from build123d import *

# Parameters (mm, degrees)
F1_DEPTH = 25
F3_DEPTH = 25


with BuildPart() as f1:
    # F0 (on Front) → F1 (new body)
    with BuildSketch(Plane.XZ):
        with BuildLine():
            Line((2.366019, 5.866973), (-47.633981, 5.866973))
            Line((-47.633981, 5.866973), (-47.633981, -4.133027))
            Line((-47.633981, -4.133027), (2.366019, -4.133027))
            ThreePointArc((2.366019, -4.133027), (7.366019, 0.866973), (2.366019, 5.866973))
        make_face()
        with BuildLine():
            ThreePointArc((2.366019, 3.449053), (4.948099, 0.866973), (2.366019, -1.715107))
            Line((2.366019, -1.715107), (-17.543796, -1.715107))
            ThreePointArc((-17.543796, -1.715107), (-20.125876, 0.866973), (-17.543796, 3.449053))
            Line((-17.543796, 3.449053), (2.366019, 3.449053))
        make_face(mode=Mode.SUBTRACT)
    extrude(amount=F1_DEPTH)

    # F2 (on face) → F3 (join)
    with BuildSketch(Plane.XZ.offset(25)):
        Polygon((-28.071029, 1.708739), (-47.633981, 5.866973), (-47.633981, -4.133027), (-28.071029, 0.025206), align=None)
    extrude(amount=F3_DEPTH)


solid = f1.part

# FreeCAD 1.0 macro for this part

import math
import FreeCAD as App
import Part
import Sketcher

V = App.Vector
Q = App.Units.Quantity


def add_polygon(sketch, points):
    """Adds a closed chain of lines whose ends are joined by coincident constraints."""
    first, n = sketch.GeometryCount, len(points)
    for a, b in zip(points, points[1:] + points[:1]):
        sketch.addGeometry(Part.LineSegment(App.Vector(*a, 0), App.Vector(*b, 0)), False)
    for i in range(n):
        sketch.addConstraint(Sketcher.Constraint("Coincident", first + i, 2, first + (i + 1) % n, 1))

doc = App.newDocument("Part")
params = doc.addObject("Spreadsheet::Sheet", "Params")
for row, (alias, value) in enumerate([
    ("sketch1_radius", "5 mm"),
    ("sketch1_width", "50 mm"),
    ("pad1_length", "25 mm"),
    ("sketch2_height", "10 mm"),
    ("sketch2_length", "20 mm"),
    ("pad2_length", "25 mm"),
], start=1):
    params.set(f"A{row}", alias)
    params.set(f"B{row}", "=" + value)
    params.setAlias(f"B{row}", alias)

body = doc.addObject("PartDesign::Body", "Body")

# Sketch on XZ plane
sketch1 = body.newObject("Sketcher::SketchObject", "Sketch")
sketch1.AttachmentSupport = (doc.getObject("XZ_Plane"), [""])
sketch1.MapMode = "FlatFace"
sketch1.addGeometry(Part.LineSegment(V(2.4, 5.9, 0), V(-47.6, 5.9, 0)), False)
sketch1.addGeometry(Part.LineSegment(V(-47.6, 5.9, 0), V(-47.6, -4.1, 0)), False)
sketch1.addGeometry(Part.LineSegment(V(-47.6, -4.1, 0), V(2.4, -4.1, 0)), False)
sketch1.addGeometry(Part.ArcOfCircle(Part.Circle(V(2.4, 0.9, 0), V(0, 0, 1), 5), math.radians(-90), math.radians(90)), False)
sketch1.addGeometry(Part.LineSegment(V(-17.5, 3.4, 0), V(2.4, 3.4, 0)), False)
sketch1.addGeometry(Part.ArcOfCircle(Part.Circle(V(2.4, 0.9, 0), V(0, 0, 1), 2.6), math.radians(-90), math.radians(90)), False)
sketch1.addGeometry(Part.LineSegment(V(2.4, -1.7, 0), V(-17.5, -1.7, 0)), False)
sketch1.addGeometry(Part.ArcOfCircle(Part.Circle(V(-17.5, 0.9, 0), V(0, 0, 1), 2.6), math.radians(90), math.radians(270)), False)
sketch1.addConstraint(Sketcher.Constraint("Coincident", 0, 2, 1, 1))
sketch1.addConstraint(Sketcher.Constraint("Coincident", 1, 2, 2, 1))
sketch1.addConstraint(Sketcher.Constraint("Tangent", 2, 2, 3, 1))
sketch1.addConstraint(Sketcher.Constraint("Tangent", 3, 2, 0, 1))
sketch1.addConstraint(Sketcher.Constraint("Tangent", 4, 2, 5, 2))
sketch1.addConstraint(Sketcher.Constraint("Tangent", 5, 1, 6, 1))
sketch1.addConstraint(Sketcher.Constraint("Tangent", 6, 2, 7, 2))
sketch1.addConstraint(Sketcher.Constraint("Tangent", 7, 1, 4, 1))
sketch1.addConstraint(Sketcher.Constraint("Horizontal", 0))
sketch1.addConstraint(Sketcher.Constraint("Vertical", 1))
sketch1.addConstraint(Sketcher.Constraint("Horizontal", 2))
sketch1.addConstraint(Sketcher.Constraint("Horizontal", 4))
sketch1.addConstraint(Sketcher.Constraint("Horizontal", 6))
sketch1.addConstraint(Sketcher.Constraint("Coincident", 5, 3, 3, 3))
sketch1.addConstraint(Sketcher.Constraint("Radius", 3, 5.0))
sketch1.addConstraint(Sketcher.Constraint("DistanceX", 0, 2, 0, 1, 50.0))
sketch1.addConstraint(Sketcher.Constraint("Radius", 5, 2.58208))
sketch1.addConstraint(Sketcher.Constraint("DistanceX", 4, 1, 4, 2, 19.909815))
sketch1.addConstraint(Sketcher.Constraint("DistanceX", -1, 1, 3, 3, 2.366019))
sketch1.addConstraint(Sketcher.Constraint("DistanceY", -1, 1, 3, 3, 0.866973))
sketch1.setExpression("Constraints[14]", "Params.sketch1_radius")
sketch1.setExpression("Constraints[15]", "Params.sketch1_width")
pad1 = body.newObject("PartDesign::Pad", "Pad")
pad1.Profile = sketch1
pad1.setExpression("Length", "Params.pad1_length")

# Sketch on XZ plane
sketch2 = body.newObject("Sketcher::SketchObject", "Sketch001")
sketch2.AttachmentSupport = (doc.getObject("XZ_Plane"), [""])
sketch2.MapMode = "FlatFace"
sketch2.AttachmentOffset = App.Placement(V(0, 0, 25), App.Rotation())
add_polygon(sketch2, [(-28.1, 1.7), (-47.6, 5.9), (-47.6, -4.1), (-28.1, 0)])  # lines 0-3
sketch2.addConstraint(Sketcher.Constraint("Vertical", 1))
sketch2.addConstraint(Sketcher.Constraint("Vertical", 3))
sketch2.addConstraint(Sketcher.Constraint("Equal", 0, 2))
sketch2.addConstraint(Sketcher.Constraint("DistanceY", 1, 2, 1, 1, 10.0))
sketch2.addConstraint(Sketcher.Constraint("Angle", 0, Q("167.999999 deg")))
sketch2.addConstraint(Sketcher.Constraint("Distance", 0, 20.0))
sketch2.addConstraint(Sketcher.Constraint("DistanceX", 0, 2, -1, 1, 47.633981))
sketch2.addConstraint(Sketcher.Constraint("DistanceY", -1, 1, 3, 2, 1.708739))
sketch2.setExpression("Constraints[7]", "Params.sketch2_height")
sketch2.setExpression("Constraints[9]", "Params.sketch2_length")
pad2 = body.newObject("PartDesign::Pad", "Pad001")
pad2.Profile = sketch2
pad2.setExpression("Length", "Params.pad2_length")

doc.recompute()
